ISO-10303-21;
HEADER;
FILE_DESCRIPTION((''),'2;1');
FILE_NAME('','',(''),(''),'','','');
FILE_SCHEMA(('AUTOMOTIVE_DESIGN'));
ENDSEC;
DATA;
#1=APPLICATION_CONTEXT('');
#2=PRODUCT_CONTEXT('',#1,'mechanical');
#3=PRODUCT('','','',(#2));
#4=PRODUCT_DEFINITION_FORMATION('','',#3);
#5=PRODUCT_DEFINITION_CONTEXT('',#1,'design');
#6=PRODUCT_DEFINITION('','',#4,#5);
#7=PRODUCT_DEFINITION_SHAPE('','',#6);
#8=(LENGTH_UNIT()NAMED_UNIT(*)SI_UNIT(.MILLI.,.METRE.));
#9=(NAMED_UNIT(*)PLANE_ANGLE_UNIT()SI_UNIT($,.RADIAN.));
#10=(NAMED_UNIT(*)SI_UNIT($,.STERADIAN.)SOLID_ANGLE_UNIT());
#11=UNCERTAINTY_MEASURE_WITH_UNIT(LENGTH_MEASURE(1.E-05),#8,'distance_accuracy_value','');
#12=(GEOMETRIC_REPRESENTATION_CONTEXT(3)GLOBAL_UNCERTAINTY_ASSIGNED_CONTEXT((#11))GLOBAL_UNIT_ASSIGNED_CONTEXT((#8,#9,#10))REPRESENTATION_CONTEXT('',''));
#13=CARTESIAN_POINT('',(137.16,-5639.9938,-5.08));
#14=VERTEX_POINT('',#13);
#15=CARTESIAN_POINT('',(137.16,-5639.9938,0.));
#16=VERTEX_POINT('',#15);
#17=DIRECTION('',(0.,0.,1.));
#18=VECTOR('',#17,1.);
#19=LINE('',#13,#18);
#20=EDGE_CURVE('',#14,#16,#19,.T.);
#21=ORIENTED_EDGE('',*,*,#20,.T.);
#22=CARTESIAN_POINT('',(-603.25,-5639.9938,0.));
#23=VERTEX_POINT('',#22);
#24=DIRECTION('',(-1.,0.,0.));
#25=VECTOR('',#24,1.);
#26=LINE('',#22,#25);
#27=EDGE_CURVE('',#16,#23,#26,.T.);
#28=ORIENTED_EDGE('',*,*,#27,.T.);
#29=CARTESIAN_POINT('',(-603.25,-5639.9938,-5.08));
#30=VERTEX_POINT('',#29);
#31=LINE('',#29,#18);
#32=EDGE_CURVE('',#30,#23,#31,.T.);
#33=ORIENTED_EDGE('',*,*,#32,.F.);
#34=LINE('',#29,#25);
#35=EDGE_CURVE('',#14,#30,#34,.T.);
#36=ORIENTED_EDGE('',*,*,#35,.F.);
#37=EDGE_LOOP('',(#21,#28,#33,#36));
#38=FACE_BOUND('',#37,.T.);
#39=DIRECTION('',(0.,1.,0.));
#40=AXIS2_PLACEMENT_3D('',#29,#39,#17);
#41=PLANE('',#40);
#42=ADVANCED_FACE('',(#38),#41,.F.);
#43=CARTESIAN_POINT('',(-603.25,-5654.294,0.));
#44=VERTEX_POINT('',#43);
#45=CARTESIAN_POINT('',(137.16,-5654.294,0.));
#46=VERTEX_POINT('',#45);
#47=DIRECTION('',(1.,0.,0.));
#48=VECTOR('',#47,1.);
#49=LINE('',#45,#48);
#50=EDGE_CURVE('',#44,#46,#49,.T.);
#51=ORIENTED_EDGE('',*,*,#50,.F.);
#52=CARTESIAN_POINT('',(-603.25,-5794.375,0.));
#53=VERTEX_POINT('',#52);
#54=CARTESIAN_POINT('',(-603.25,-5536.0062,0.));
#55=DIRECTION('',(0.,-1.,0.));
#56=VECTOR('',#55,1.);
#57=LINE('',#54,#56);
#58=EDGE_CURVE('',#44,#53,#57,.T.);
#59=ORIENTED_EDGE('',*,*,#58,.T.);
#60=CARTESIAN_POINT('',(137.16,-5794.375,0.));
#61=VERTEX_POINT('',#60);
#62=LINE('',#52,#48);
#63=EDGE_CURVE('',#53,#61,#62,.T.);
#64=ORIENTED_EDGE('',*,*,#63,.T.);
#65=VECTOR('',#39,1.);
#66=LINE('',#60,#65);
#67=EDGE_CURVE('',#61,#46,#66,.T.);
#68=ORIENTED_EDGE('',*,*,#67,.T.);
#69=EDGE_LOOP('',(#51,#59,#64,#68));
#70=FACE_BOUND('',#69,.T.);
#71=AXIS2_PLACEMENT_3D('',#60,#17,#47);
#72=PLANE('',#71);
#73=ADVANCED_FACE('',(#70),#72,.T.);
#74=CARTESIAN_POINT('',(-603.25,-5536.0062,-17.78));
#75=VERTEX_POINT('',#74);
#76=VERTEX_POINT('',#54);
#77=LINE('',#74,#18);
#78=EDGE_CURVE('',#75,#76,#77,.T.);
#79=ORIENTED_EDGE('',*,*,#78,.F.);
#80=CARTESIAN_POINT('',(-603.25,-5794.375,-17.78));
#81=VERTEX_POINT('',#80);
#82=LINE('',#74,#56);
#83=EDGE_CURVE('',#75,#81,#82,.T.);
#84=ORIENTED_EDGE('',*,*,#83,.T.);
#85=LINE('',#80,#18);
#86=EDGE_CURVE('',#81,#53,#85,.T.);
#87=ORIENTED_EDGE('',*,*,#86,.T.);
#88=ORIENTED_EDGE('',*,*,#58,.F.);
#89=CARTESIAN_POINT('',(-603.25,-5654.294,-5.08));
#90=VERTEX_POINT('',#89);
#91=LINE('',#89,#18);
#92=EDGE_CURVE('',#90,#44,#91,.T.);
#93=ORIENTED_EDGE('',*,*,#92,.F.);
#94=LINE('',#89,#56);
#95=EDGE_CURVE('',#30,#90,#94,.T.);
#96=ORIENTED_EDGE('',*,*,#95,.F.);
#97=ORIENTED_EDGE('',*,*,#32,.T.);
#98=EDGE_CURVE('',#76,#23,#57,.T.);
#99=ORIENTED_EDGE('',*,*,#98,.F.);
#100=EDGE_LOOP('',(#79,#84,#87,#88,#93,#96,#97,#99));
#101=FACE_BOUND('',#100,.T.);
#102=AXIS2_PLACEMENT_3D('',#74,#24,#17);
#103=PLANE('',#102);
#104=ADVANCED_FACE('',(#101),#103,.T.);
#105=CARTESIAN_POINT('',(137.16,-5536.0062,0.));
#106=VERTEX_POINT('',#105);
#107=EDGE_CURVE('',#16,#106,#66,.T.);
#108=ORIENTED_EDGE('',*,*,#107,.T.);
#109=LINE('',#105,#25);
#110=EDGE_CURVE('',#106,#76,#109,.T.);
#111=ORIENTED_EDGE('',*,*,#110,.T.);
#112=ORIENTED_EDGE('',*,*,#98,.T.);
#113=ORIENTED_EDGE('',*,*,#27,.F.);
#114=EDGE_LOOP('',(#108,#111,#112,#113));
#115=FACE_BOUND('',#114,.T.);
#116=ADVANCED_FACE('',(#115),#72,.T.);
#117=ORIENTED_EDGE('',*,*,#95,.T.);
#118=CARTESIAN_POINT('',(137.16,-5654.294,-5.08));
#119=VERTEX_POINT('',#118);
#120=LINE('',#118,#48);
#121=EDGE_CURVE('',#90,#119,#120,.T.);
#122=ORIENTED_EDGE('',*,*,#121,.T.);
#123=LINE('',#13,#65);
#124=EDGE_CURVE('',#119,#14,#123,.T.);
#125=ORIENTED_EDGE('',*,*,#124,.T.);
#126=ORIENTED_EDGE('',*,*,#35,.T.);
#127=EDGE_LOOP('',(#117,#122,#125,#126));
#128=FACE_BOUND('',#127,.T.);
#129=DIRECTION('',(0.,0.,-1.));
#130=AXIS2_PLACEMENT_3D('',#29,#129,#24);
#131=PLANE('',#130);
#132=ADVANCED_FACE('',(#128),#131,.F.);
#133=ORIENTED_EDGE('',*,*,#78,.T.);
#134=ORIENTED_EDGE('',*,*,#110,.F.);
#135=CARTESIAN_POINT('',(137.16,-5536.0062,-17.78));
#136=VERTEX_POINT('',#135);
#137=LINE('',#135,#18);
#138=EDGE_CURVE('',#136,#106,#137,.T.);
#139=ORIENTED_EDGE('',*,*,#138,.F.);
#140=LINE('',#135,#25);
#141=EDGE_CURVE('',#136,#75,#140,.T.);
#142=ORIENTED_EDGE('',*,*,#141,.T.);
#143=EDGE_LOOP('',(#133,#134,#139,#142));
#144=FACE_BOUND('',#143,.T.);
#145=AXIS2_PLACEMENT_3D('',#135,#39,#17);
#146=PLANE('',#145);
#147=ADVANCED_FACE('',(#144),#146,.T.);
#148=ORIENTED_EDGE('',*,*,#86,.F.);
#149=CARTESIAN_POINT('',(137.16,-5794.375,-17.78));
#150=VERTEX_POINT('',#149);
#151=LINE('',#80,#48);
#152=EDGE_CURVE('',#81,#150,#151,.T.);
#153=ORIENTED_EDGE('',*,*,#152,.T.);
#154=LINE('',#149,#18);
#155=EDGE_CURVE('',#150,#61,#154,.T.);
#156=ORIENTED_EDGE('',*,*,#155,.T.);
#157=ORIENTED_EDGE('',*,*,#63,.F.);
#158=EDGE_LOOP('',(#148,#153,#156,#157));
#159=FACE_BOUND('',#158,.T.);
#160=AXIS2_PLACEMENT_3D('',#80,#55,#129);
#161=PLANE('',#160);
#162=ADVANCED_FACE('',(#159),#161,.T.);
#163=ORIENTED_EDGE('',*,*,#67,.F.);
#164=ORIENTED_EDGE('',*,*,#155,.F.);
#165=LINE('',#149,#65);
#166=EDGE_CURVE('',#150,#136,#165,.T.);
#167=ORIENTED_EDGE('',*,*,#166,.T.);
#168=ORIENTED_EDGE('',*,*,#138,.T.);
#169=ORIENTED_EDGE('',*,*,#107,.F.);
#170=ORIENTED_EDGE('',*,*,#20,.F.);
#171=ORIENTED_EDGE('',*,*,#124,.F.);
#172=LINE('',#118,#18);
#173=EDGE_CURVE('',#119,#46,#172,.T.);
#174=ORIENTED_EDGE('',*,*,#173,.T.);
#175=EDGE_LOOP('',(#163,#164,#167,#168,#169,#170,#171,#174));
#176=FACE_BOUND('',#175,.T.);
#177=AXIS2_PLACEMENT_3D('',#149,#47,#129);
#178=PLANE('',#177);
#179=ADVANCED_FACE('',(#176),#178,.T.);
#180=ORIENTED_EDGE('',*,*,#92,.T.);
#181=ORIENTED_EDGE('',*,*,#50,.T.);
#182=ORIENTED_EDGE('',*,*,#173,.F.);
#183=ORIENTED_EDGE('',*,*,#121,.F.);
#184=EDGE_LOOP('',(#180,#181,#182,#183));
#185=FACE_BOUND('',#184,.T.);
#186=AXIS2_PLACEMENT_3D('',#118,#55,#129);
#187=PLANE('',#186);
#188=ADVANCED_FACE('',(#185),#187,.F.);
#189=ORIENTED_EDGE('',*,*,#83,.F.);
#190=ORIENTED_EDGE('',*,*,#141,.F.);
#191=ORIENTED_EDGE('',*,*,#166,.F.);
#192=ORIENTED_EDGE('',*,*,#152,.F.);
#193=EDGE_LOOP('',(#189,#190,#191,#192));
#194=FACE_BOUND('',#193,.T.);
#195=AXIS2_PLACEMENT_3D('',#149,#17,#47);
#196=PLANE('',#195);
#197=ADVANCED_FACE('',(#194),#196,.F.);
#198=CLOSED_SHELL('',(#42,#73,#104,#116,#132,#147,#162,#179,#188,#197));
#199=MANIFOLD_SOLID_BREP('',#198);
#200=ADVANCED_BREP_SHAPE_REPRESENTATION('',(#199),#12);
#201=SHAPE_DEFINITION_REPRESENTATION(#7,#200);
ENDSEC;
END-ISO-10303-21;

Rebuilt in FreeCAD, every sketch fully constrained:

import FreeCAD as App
import Part
import Sketcher

V = App.Vector
Q = App.Units.Quantity


def add_polygon(sketch, points):
    """Adds a closed chain of lines whose ends are joined by coincident constraints."""
    first, n = sketch.GeometryCount, len(points)
    for a, b in zip(points, points[1:] + points[:1]):
        sketch.addGeometry(Part.LineSegment(App.Vector(*a, 0), App.Vector(*b, 0)), False)
    for i in range(n):
        sketch.addConstraint(Sketcher.Constraint("Coincident", first + i, 2, first + (i + 1) % n, 1))

doc = App.newDocument("Part")
params = doc.addObject("Spreadsheet::Sheet", "Params")
for row, (alias, value) in enumerate([
    ("sketch1_width", "29.15 in"),
    ("sketch1_height", "10.172 in"),
    ("pad1_length", "0.7 in"),
    ("sketch2_width", "29.15 in"),
    ("sketch2_height", "0.563 in"),
    ("pocket1_length", "0.2 in"),
], start=1):
    params.set(f"A{row}", alias)
    params.set(f"B{row}", "=" + value)
    params.setAlias(f"B{row}", alias)

body = doc.addObject("PartDesign::Body", "Body")

sketch1 = body.newObject("Sketcher::SketchObject", "Sketch")
sketch1.AttachmentSupport = (doc.getObject("XY_Plane"), [""])
sketch1.MapMode = "FlatFace"
add_polygon(sketch1, [(-603.25, -5536.0062), (-603.25, -5794.375), (137.16, -5794.375), (137.16, -5536.0062)])
sketch1.addConstraint([
    Sketcher.Constraint("Vertical", 0),
    Sketcher.Constraint("Horizontal", 1),
    Sketcher.Constraint("Vertical", 2),
    Sketcher.Constraint("Horizontal", 3),
    Sketcher.Constraint("DistanceX", 1, 1, 1, 2, Q("29.15 in")),
    Sketcher.Constraint("DistanceX", -1, 1, 1, 2, Q("5.4 in")),
    Sketcher.Constraint("DistanceY", 0, 2, 0, 1, Q("10.172 in")),
    Sketcher.Constraint("DistanceY", 0, 2, -1, 1, Q("228.125 in")),
])
sketch1.setExpression("Constraints[8]", "Params.sketch1_width")
sketch1.setExpression("Constraints[10]", "Params.sketch1_height")
pad1 = body.newObject("PartDesign::Pad", "Pad")
pad1.Profile = sketch1
pad1.setExpression("Length", "Params.pad1_length")
pad1.Reversed = True

sketch2 = body.newObject("Sketcher::SketchObject", "Sketch001")
sketch2.AttachmentSupport = (doc.getObject("XY_Plane"), [""])
sketch2.MapMode = "FlatFace"
add_polygon(sketch2, [(-603.25, -5639.9938), (-603.25, -5654.294), (137.16, -5654.294), (137.16, -5639.9938)])
sketch2.addConstraint([
    Sketcher.Constraint("Vertical", 0),
    Sketcher.Constraint("Horizontal", 1),
    Sketcher.Constraint("Vertical", 2),
    Sketcher.Constraint("Horizontal", 3),
    Sketcher.Constraint("DistanceX", 1, 1, 1, 2, Q("29.15 in")),
    Sketcher.Constraint("DistanceX", -1, 1, 1, 2, Q("5.4 in")),
    Sketcher.Constraint("DistanceY", 0, 2, 0, 1, Q("0.563 in")),
    Sketcher.Constraint("DistanceY", 0, 2, -1, 1, Q("222.61 in")),
])
sketch2.setExpression("Constraints[8]", "Params.sketch2_width")
sketch2.setExpression("Constraints[10]", "Params.sketch2_height")
pocket1 = body.newObject("PartDesign::Pocket", "Pocket")
pocket1.Profile = sketch2
pocket1.setExpression("Length", "Params.pocket1_length")

doc.recompute()
